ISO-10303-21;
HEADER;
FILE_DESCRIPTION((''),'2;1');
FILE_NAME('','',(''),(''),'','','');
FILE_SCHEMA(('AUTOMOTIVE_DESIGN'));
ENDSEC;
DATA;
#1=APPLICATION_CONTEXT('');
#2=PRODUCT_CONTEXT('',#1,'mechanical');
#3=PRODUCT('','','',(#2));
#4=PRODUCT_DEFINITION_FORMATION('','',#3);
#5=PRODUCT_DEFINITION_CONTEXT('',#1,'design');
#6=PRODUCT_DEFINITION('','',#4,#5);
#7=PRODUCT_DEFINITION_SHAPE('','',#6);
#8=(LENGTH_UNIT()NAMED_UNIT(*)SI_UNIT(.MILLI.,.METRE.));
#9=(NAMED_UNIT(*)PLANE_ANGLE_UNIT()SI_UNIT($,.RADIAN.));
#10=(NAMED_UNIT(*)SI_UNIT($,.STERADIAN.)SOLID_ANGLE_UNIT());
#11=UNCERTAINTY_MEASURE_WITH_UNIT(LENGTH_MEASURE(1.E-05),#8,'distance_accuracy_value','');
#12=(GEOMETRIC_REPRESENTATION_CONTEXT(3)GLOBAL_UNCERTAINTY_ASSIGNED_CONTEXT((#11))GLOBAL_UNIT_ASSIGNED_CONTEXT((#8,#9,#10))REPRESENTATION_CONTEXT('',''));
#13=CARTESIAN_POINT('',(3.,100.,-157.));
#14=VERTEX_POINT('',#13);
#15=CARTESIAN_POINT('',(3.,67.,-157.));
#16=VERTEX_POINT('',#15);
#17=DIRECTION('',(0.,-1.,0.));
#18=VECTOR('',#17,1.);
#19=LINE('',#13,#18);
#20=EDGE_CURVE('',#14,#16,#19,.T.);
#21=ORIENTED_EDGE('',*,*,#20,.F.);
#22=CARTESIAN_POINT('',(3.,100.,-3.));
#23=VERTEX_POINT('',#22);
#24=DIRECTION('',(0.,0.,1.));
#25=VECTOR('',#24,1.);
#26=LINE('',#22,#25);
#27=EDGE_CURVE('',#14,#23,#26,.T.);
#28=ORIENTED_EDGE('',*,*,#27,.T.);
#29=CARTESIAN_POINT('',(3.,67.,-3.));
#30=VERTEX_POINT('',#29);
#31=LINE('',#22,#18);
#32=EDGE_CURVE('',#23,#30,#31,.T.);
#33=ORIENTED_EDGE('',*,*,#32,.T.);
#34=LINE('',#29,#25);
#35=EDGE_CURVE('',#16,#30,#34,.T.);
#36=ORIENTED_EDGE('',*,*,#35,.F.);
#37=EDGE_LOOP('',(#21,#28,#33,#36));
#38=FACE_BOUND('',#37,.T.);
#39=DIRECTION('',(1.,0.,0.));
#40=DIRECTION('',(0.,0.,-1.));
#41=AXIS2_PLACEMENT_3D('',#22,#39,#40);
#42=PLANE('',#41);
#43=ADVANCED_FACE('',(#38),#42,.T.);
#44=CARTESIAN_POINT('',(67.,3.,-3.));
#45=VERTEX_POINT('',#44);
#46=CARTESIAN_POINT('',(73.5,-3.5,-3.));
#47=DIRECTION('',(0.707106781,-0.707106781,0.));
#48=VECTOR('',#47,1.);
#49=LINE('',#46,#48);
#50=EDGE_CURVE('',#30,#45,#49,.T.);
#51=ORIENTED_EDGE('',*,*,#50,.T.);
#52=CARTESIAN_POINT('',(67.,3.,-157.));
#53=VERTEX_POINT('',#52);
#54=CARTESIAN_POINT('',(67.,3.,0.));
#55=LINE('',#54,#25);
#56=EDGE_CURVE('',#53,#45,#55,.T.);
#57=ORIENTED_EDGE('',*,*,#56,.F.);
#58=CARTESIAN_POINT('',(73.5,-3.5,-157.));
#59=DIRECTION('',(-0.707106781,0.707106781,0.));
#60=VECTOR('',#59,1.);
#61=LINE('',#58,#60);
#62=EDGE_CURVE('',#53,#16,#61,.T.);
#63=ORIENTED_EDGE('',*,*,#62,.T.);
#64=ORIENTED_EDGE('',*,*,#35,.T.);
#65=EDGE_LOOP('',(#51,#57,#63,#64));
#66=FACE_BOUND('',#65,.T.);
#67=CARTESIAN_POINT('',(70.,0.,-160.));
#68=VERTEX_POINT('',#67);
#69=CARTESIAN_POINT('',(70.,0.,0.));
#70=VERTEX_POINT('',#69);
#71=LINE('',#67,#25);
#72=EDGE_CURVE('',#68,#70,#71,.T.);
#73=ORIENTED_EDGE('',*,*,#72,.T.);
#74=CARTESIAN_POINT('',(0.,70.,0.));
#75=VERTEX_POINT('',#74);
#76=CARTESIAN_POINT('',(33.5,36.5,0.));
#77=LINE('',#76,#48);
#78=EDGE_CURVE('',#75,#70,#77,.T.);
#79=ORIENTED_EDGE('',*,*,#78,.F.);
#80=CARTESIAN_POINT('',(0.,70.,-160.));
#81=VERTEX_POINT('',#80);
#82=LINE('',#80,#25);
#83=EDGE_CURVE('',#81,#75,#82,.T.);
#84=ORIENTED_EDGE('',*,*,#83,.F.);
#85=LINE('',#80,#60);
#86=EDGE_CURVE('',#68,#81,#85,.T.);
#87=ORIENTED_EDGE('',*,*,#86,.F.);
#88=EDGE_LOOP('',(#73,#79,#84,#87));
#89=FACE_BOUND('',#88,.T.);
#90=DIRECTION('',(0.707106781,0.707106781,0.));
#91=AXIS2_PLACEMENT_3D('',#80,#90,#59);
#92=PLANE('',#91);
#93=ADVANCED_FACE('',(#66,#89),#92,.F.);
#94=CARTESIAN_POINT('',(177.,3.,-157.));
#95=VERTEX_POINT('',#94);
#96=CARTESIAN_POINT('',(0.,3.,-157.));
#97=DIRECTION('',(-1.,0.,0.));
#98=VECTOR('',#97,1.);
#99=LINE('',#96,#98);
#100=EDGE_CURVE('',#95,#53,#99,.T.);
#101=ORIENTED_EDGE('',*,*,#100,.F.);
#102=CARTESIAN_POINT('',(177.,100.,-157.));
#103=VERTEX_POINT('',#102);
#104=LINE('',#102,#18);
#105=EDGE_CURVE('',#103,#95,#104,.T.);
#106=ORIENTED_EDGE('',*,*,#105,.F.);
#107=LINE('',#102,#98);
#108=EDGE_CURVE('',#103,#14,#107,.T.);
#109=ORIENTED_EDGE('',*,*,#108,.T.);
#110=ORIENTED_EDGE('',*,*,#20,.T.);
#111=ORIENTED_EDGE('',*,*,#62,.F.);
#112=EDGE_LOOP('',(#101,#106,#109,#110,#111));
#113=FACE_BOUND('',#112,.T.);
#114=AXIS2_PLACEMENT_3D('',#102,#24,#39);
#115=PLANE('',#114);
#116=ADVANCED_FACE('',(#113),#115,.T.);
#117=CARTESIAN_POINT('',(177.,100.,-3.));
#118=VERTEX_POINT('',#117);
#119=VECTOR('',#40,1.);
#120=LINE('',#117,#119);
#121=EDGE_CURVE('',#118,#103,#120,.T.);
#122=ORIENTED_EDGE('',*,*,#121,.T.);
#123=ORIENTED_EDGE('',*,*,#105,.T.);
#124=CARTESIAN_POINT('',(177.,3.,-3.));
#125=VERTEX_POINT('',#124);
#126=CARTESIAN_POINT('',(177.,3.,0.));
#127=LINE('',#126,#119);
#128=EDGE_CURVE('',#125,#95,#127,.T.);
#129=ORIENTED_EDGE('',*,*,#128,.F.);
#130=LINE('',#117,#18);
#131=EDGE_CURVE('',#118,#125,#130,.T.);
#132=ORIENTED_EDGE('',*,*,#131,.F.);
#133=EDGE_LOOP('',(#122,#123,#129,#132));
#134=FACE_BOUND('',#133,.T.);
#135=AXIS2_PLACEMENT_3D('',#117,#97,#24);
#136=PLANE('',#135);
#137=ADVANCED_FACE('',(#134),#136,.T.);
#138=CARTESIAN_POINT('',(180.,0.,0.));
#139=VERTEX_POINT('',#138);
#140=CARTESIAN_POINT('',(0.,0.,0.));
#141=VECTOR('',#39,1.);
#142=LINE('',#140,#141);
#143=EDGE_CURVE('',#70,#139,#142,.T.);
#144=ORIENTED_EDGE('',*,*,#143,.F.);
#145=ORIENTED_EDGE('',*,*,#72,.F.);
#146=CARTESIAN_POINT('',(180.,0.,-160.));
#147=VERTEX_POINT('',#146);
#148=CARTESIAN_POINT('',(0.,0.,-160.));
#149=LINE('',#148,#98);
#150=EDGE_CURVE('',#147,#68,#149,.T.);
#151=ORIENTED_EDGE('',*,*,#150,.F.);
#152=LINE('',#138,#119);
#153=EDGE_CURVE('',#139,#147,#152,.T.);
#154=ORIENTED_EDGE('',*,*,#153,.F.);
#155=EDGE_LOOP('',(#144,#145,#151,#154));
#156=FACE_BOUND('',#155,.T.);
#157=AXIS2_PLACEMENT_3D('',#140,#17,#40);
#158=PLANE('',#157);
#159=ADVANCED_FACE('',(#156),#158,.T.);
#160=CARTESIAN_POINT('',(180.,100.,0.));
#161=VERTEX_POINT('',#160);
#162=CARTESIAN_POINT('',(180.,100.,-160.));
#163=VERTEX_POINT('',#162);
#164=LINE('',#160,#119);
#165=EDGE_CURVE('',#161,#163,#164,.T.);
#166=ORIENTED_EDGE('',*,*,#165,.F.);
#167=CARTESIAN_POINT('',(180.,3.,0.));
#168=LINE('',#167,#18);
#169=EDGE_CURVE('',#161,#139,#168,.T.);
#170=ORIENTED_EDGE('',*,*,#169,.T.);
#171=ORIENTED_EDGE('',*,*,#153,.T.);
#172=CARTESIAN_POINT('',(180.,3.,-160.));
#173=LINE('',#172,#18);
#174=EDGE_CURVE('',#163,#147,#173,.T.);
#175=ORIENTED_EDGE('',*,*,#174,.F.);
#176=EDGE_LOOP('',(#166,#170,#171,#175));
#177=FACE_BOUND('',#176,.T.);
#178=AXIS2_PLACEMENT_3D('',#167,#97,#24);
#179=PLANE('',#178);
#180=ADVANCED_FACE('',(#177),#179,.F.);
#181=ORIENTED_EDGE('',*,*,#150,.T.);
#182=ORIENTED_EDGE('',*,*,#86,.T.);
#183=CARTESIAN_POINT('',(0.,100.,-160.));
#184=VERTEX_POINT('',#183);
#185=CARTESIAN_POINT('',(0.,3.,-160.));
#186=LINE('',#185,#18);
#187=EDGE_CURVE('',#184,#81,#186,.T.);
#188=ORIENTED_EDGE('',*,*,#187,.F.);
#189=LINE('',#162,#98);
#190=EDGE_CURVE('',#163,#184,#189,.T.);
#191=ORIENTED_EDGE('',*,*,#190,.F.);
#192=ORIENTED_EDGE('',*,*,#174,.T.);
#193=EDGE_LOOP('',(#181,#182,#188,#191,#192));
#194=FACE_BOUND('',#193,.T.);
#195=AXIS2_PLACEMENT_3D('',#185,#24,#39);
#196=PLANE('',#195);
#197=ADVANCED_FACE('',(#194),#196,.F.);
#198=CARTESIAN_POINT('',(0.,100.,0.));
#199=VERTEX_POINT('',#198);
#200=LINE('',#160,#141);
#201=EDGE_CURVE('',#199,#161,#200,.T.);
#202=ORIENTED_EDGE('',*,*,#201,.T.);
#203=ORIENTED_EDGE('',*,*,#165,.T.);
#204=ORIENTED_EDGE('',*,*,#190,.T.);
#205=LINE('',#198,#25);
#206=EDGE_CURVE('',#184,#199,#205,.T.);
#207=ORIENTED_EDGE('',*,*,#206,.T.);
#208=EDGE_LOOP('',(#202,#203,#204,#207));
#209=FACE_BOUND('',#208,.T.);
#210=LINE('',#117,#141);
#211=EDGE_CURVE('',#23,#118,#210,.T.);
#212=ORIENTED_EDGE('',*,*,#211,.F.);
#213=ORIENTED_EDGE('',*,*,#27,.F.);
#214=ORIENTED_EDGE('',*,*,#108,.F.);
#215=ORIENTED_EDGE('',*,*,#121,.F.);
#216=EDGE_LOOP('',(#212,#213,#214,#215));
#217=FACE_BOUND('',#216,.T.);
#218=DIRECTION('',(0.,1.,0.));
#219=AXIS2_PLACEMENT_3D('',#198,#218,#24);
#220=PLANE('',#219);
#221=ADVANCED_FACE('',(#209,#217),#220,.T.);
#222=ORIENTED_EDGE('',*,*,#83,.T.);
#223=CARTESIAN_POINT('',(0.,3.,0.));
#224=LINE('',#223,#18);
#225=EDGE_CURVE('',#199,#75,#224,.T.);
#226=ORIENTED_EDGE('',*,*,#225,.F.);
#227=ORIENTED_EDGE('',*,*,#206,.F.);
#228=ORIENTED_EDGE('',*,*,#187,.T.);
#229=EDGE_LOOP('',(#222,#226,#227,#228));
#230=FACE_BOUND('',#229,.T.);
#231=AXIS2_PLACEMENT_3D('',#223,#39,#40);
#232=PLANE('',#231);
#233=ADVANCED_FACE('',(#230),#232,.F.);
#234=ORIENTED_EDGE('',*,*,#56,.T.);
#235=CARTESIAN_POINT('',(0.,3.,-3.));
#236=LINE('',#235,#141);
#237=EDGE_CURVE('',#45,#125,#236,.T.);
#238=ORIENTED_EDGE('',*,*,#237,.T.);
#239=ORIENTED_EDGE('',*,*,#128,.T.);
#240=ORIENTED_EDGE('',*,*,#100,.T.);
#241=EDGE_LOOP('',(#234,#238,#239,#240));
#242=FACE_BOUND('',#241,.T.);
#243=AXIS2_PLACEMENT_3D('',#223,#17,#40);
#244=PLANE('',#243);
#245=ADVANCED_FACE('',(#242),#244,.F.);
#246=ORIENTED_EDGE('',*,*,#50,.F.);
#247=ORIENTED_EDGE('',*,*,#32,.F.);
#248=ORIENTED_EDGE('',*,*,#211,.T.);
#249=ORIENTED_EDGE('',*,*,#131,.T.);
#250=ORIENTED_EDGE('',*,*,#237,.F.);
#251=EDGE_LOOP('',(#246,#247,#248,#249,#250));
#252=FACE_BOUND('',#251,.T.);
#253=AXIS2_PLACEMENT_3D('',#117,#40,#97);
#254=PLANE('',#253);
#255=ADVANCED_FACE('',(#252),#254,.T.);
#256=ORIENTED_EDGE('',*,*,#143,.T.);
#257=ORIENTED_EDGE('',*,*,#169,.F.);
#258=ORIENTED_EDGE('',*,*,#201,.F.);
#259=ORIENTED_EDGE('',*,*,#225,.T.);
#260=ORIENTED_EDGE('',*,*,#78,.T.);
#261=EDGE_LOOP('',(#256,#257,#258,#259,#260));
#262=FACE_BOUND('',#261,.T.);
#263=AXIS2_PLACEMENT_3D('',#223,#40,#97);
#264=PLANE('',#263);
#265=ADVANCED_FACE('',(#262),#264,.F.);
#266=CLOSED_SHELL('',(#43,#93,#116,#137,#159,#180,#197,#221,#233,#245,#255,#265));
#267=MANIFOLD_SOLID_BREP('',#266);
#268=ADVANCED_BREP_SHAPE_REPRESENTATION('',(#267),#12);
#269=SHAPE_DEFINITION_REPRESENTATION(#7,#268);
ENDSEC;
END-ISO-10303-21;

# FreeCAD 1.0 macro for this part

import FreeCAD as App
import Part
import Sketcher
from FreeCAD import Vector
Q = App.Units.Quantity


def add_polygon(sketch, points):
    """Adds a closed chain of lines whose ends are joined by coincident constraints."""
    first, n = sketch.GeometryCount, len(points)
    for a, b in zip(points, points[1:] + points[:1]):
        sketch.addGeometry(Part.LineSegment(App.Vector(*a, 0), App.Vector(*b, 0)), False)
    for i in range(n):
        sketch.addConstraint(Sketcher.Constraint("Coincident", first + i, 2, first + (i + 1) % n, 1))

doc = App.newDocument("Part")
body = doc.addObject("PartDesign::Body", "Body")

# Sketch on XZ plane
sketch1 = body.newObject("Sketcher::SketchObject", "Sketch")
sketch1.AttachmentSupport = (doc.getObject("XZ_Plane"), [""])
sketch1.MapMode = "FlatFace"
add_polygon(sketch1, [(0, -160), (0, 0), (180, 0), (180, -160)])  # lines 0-3
sketch1.addConstraint([
    Sketcher.Constraint("Vertical", 0),
    Sketcher.Constraint("Horizontal", 1),
    Sketcher.Constraint("Vertical", 2),
    Sketcher.Constraint("Horizontal", 3),
    Sketcher.Constraint("Coincident", 0, 2, -1, 1),
    Sketcher.Constraint("DistanceX", 1, 1, 1, 2, Q("180 mm")),
    Sketcher.Constraint("DistanceY", 0, 1, 0, 2, Q("160 mm")),
])
pad1 = body.newObject("PartDesign::Pad", "Pad")
pad1.Profile = sketch1
pad1.Length = 3
pad1.Reversed = True

# Sketch on XZ plane
sketch2 = body.newObject("Sketcher::SketchObject", "Sketch001")
sketch2.AttachmentSupport = (doc.getObject("XZ_Plane"), [""])
sketch2.MapMode = "FlatFace"
add_polygon(sketch2, [(0, -160), (0, 0), (180, 0), (180, -160)])  # lines 0-3
add_polygon(sketch2, [(177, -3), (3, -3), (3, -157), (177, -157)])  # lines 4-7
sketch2.addConstraint([
    Sketcher.Constraint("Vertical", 0),
    Sketcher.Constraint("Horizontal", 1),
    Sketcher.Constraint("Vertical", 2),
    Sketcher.Constraint("Horizontal", 3),
    Sketcher.Constraint("Horizontal", 4),
    Sketcher.Constraint("Vertical", 5),
    Sketcher.Constraint("Horizontal", 6),
    Sketcher.Constraint("Vertical", 7),
    Sketcher.Constraint("Coincident", 0, 2, -1, 1),
    Sketcher.Constraint("DistanceX", 1, 1, 1, 2, Q("180 mm")),
    Sketcher.Constraint("DistanceX", 4, 2, 4, 1, Q("174 mm")),
    Sketcher.Constraint("DistanceY", 0, 1, 0, 2, Q("160 mm")),
    Sketcher.Constraint("DistanceY", 5, 2, 5, 1, Q("154 mm")),
    Sketcher.Constraint("DistanceX", -1, 1, 4, 2, Q("3 mm")),
    Sketcher.Constraint("DistanceY", 4, 2, -1, 1, Q("3 mm")),
])
pad2 = body.newObject("PartDesign::Pad", "Pad001")
pad2.Profile = sketch2
pad2.Length = 100
pad2.Reversed = True

# Sketch on XY plane
sketch3 = body.newObject("Sketcher::SketchObject", "Sketch002")
sketch3.AttachmentSupport = (doc.getObject("XY_Plane"), [""])
sketch3.MapMode = "FlatFace"
add_polygon(sketch3, [(70, 0), (0, 70), (0, 0)])  # lines 0-2
sketch3.addConstraint([
    Sketcher.Constraint("Vertical", 1),
    Sketcher.Constraint("Horizontal", 2),
    Sketcher.Constraint("Coincident", 1, 2, -1, 1),
    Sketcher.Constraint("Equal", 2, 1),
    Sketcher.Constraint("DistanceX", 2, 1, 2, 2, Q("70 mm")),
])
pocket1 = body.newObject("PartDesign::Pocket", "Pocket")
pocket1.Profile = sketch3
pocket1.Type = "ThroughAll"
pocket1.Midplane = True

doc.recompute()
